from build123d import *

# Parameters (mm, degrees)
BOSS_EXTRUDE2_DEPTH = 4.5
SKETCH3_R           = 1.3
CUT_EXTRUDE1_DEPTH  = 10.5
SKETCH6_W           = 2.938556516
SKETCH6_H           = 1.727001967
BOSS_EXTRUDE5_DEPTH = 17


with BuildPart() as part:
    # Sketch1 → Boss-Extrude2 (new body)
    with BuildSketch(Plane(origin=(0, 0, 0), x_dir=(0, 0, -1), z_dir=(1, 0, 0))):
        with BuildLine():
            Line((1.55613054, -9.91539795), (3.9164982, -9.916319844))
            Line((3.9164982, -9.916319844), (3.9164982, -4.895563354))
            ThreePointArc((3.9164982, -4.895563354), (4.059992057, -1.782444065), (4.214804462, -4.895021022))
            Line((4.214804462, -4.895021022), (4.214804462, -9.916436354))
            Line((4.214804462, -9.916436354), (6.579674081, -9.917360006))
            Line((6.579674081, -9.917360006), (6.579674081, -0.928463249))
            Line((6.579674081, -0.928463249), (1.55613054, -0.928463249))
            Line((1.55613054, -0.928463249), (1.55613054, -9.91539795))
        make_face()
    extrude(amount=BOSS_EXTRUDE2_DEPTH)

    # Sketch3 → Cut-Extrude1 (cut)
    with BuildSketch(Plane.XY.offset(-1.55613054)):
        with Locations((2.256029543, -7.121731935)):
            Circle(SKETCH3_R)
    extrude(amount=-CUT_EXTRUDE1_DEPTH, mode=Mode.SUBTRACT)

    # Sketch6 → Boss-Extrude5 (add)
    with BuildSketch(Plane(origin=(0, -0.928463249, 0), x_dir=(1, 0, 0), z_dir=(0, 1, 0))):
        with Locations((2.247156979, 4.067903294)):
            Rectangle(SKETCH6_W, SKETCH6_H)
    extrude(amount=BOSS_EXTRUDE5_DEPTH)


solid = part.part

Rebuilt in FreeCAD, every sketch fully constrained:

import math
import FreeCAD as App
import Part
import Sketcher
from FreeCAD import Vector
Q = App.Units.Quantity

doc = App.newDocument("Part")
params = doc.addObject("Spreadsheet::Sheet", "Params")
for row, (alias, value) in enumerate([
    ("sketch1_radius", "1.56 mm"),
    ("pad1_length", "4.5 mm"),
    ("sketch2_diameter", "2.6 mm"),
    ("pocket1_length", "10.5 mm"),
    ("pad2_length", "17 mm"),
], start=1):
    params.set(f"A{row}", alias)
    params.set(f"B{row}", "=" + value)
    params.setAlias(f"B{row}", alias)

body = doc.addObject("PartDesign::Body", "Body")

sketch1 = body.newObject("Sketcher::SketchObject", "Sketch")
sketch1.AttachmentSupport = (doc.getObject("YZ_Plane"), [""])
sketch1.MapMode = "FlatFace"
sketch1.addGeometry([
    Part.LineSegment(Vector(-9.915398, -1.556131, 0), Vector(-9.91632, -3.916498, 0)),
    Part.LineSegment(Vector(-9.91632, -3.916498, 0), Vector(-4.895563, -3.916498, 0)),
    Part.ArcOfCircle(Part.Circle(Vector(-3.342441, -4.062828, 0), Vector(0, 0, 1), 1.56), math.radians(-174.409339), math.radians(174.61767)),
    Part.LineSegment(Vector(-4.895021, -4.214804, 0), Vector(-9.916436, -4.214804, 0)),
    Part.LineSegment(Vector(-9.916436, -4.214804, 0), Vector(-9.91736, -6.579674, 0)),
    Part.LineSegment(Vector(-9.91736, -6.579674, 0), Vector(-0.928463, -6.579674, 0)),
    Part.LineSegment(Vector(-0.928463, -6.579674, 0), Vector(-0.928463, -1.556131, 0)),
    Part.LineSegment(Vector(-0.928463, -1.556131, 0), Vector(-9.915398, -1.556131, 0)),
], False)
sketch1.addConstraint([
    Sketcher.Constraint("Coincident", 0, 2, 1, 1),
    Sketcher.Constraint("Coincident", 1, 2, 2, 2),
    Sketcher.Constraint("Coincident", 2, 1, 3, 1),
    Sketcher.Constraint("Coincident", 3, 2, 4, 1),
    Sketcher.Constraint("Coincident", 4, 2, 5, 1),
    Sketcher.Constraint("Coincident", 5, 2, 6, 1),
    Sketcher.Constraint("Coincident", 6, 2, 7, 1),
    Sketcher.Constraint("Coincident", 7, 2, 0, 1),
    Sketcher.Constraint("Horizontal", 1),
    Sketcher.Constraint("Horizontal", 3),
    Sketcher.Constraint("Horizontal", 5),
    Sketcher.Constraint("Vertical", 6),
    Sketcher.Constraint("Horizontal", 7),
    Sketcher.Constraint("Parallel", 0, 4),
    Sketcher.Constraint("Radius", 2, Q("1.56 mm")),
    Sketcher.Constraint("DistanceY", 0, 2, -1, 1, Q("3.916498 mm")),
    Sketcher.Constraint("DistanceX", 0, 2, 2, 1, Q("5.021299 mm")),
    Sketcher.Constraint("DistanceX", 1, 2, 5, 2, Q("3.9671 mm")),
    Sketcher.Constraint("Distance", 4, Q("2.36487 mm")),
    Sketcher.Constraint("DistanceX", 1, 1, 1, 2, Q("5.020756 mm")),
    Sketcher.Constraint("DistanceX", 3, 2, 3, 1, Q("5.021415 mm")),
    Sketcher.Constraint("DistanceX", 5, 1, 5, 2, Q("8.988897 mm")),
    Sketcher.Constraint("DistanceY", 6, 1, 6, 2, Q("5.023544 mm")),
    Sketcher.Constraint("DistanceX", 2, 3, -1, 1, Q("3.342441 mm")),
    Sketcher.Constraint("DistanceY", 2, 3, -1, 1, Q("4.062828 mm")),
])
sketch1.setExpression("Constraints[14]", "Params.sketch1_radius")
pad1 = body.newObject("PartDesign::Pad", "Pad")
pad1.Profile = sketch1
pad1.setExpression("Length", "Params.pad1_length")

sketch2 = body.newObject("Sketcher::SketchObject", "Sketch001")
sketch2.AttachmentSupport = (doc.getObject("XY_Plane"), [""])
sketch2.MapMode = "FlatFace"
sketch2.AttachmentOffset = App.Placement(Vector(0, 0, -1.556131), App.Rotation())
sketch2.addGeometry(Part.Circle(Vector(2.25603, -7.121732, 0), Vector(0, 0, 1), 1.3), False)
sketch2.addConstraint([
    Sketcher.Constraint("Diameter", 0, Q("2.6 mm")),
    Sketcher.Constraint("DistanceX", -1, 1, 0, 3, Q("2.25603 mm")),
    Sketcher.Constraint("DistanceY", 0, 3, -1, 1, Q("7.121732 mm")),
])
sketch2.setExpression("Constraints[0]", "Params.sketch2_diameter")
pocket1 = body.newObject("PartDesign::Pocket", "Pocket")
pocket1.Profile = sketch2
pocket1.setExpression("Length", "Params.pocket1_length")

sketch3 = body.newObject("Sketcher::SketchObject", "Sketch002")
sketch3.AttachmentSupport = (doc.getObject("XZ_Plane"), [""])
sketch3.MapMode = "FlatFace"
sketch3.AttachmentOffset = App.Placement(Vector(0, 0, 0.928463), App.Rotation())
sketch3.addGeometry([
    Part.LineSegment(Vector(0.777879, -4.931404, 0), Vector(0.777879, -3.204402, 0)),
    Part.LineSegment(Vector(0.777879, -3.204402, 0), Vector(3.716435, -3.204402, 0)),
    Part.LineSegment(Vector(3.716435, -3.204402, 0), Vector(3.716435, -4.931404, 0)),
    Part.LineSegment(Vector(3.716435, -4.931404, 0), Vector(0.777879, -4.931404, 0)),
], False)
sketch3.addConstraint([
    Sketcher.Constraint("Coincident", 0, 2, 1, 1),
    Sketcher.Constraint("Coincident", 1, 2, 2, 1),
    Sketcher.Constraint("Coincident", 2, 2, 3, 1),
    Sketcher.Constraint("Coincident", 3, 2, 0, 1),
    Sketcher.Constraint("Vertical", 0),
    Sketcher.Constraint("Horizontal", 1),
    Sketcher.Constraint("Vertical", 2),
    Sketcher.Constraint("Horizontal", 3),
    Sketcher.Constraint("DistanceY", 0, 1, 0, 2, Q("1.727002 mm")),
    Sketcher.Constraint("DistanceX", 1, 1, 1, 2, Q("2.938557 mm")),
    Sketcher.Constraint("DistanceX", -1, 1, 0, 2, Q("0.777879 mm")),
    Sketcher.Constraint("DistanceY", 0, 2, -1, 1, Q("3.204402 mm")),
])
pad2 = body.newObject("PartDesign::Pad", "Pad001")
pad2.Profile = sketch3
pad2.setExpression("Length", "Params.pad2_length")
pad2.Reversed = True

doc.recompute()
